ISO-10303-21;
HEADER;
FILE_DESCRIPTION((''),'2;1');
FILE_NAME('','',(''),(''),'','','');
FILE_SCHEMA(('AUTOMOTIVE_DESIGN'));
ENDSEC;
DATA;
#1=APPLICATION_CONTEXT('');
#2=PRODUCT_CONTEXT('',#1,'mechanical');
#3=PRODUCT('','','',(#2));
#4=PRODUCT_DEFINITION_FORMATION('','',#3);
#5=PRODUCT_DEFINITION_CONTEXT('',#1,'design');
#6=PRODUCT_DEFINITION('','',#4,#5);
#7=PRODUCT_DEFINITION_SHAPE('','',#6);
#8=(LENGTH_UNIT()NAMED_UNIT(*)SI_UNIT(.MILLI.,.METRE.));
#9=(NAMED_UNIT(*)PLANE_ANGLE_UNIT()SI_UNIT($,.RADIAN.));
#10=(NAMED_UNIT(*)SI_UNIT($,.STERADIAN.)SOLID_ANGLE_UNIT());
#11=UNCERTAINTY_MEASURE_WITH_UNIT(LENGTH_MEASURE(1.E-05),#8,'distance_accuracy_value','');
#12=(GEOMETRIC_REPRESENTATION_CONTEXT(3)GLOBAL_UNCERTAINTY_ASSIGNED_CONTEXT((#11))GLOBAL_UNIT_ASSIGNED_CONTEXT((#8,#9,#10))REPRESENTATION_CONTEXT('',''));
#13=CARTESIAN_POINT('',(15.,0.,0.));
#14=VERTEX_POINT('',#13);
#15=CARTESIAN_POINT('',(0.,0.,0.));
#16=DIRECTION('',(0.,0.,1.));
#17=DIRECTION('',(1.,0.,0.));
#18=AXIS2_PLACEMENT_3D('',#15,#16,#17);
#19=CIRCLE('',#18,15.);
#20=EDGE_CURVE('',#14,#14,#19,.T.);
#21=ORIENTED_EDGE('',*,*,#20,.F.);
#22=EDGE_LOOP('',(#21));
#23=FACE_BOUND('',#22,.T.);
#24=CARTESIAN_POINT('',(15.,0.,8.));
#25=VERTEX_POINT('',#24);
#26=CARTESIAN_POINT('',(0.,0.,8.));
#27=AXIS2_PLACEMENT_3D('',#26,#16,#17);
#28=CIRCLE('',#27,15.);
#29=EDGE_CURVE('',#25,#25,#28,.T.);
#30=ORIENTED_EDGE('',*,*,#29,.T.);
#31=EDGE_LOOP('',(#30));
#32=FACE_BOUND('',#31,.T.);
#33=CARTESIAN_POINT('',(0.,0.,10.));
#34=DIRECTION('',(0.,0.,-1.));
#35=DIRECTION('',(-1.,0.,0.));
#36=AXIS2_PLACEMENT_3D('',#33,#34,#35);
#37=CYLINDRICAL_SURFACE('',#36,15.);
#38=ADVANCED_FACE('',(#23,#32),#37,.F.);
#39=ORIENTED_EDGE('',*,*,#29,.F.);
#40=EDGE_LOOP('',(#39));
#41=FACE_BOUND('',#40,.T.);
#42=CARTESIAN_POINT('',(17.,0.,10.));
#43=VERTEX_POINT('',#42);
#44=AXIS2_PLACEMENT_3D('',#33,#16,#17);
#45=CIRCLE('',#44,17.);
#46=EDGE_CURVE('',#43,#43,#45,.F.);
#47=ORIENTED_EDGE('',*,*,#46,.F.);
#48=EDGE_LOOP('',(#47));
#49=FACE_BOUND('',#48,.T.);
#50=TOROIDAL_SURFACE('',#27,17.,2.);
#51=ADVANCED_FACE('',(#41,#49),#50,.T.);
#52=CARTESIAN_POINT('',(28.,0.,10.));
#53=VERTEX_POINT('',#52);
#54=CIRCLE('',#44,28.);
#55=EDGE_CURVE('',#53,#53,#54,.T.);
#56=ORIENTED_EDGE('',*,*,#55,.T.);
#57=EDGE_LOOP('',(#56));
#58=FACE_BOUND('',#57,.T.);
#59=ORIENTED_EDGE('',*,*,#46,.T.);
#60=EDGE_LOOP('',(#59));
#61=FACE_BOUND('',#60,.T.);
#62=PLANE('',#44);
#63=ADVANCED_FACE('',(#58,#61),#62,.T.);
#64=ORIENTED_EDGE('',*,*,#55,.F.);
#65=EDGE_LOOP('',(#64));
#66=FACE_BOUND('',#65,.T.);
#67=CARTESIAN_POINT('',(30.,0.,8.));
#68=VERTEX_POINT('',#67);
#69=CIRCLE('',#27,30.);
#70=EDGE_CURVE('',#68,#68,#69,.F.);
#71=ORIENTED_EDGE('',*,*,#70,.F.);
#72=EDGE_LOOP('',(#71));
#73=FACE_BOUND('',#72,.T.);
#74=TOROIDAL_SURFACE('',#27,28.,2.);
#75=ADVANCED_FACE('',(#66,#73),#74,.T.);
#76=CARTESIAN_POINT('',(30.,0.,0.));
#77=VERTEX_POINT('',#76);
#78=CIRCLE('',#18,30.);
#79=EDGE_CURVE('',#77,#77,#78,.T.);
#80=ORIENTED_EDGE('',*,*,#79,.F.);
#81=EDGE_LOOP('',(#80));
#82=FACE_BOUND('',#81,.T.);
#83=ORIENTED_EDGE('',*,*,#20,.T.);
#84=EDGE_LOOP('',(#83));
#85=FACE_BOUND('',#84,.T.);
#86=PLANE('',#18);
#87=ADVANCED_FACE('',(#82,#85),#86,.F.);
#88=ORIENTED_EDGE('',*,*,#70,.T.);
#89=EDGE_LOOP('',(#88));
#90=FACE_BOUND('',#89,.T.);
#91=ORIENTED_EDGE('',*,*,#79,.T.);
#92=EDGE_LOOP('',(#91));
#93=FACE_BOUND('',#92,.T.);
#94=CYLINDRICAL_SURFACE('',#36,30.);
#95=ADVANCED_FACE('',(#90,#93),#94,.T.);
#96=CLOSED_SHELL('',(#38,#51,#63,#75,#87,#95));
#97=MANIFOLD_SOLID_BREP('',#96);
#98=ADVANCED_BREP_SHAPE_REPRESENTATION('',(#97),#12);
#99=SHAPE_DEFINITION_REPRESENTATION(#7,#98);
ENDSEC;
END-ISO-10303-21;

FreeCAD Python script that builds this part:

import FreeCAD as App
import Part
import Sketcher

V = App.Vector
Q = App.Units.Quantity


def edges_at(feature, points):
    """Names of the edges that pass closest to the given points."""
    edges = feature.Shape.Edges
    near = lambda p: min(range(len(edges)), key=lambda i: edges[i].distToShape(Part.Vertex(*p))[0])
    return sorted({f"Edge{near(p) + 1}" for p in points})

doc = App.newDocument("Part")
body = doc.addObject("PartDesign::Body", "Body")

# Sketch on XY plane
sketch1 = body.newObject("Sketcher::SketchObject", "Sketch")
sketch1.AttachmentSupport = (doc.getObject("XY_Plane"), [""])
sketch1.MapMode = "FlatFace"
sketch1.addGeometry([
    Part.Circle(V(0, 0, 0), V(0, 0, 1), 30),
    Part.Circle(V(0, 0, 0), V(0, 0, 1), 15),
], False)
sketch1.addConstraint([
    Sketcher.Constraint("Coincident", 0, 3, -1, 1),
    Sketcher.Constraint("Coincident", 1, 3, -1, 1),
    Sketcher.Constraint("Diameter", 0, Q("60 mm")),
    Sketcher.Constraint("Diameter", 1, Q("30 mm")),
])
pad1 = body.newObject("PartDesign::Pad", "Pad")
pad1.Profile = sketch1
pad1.Length = 10
doc.recompute()

fillet = body.newObject("PartDesign::Fillet", "Fillet")
fillet.Base = (pad1, edges_at(pad1, [(-30, 0, 10), (-15, 0, 10)]))
fillet.Radius = 2

doc.recompute()
